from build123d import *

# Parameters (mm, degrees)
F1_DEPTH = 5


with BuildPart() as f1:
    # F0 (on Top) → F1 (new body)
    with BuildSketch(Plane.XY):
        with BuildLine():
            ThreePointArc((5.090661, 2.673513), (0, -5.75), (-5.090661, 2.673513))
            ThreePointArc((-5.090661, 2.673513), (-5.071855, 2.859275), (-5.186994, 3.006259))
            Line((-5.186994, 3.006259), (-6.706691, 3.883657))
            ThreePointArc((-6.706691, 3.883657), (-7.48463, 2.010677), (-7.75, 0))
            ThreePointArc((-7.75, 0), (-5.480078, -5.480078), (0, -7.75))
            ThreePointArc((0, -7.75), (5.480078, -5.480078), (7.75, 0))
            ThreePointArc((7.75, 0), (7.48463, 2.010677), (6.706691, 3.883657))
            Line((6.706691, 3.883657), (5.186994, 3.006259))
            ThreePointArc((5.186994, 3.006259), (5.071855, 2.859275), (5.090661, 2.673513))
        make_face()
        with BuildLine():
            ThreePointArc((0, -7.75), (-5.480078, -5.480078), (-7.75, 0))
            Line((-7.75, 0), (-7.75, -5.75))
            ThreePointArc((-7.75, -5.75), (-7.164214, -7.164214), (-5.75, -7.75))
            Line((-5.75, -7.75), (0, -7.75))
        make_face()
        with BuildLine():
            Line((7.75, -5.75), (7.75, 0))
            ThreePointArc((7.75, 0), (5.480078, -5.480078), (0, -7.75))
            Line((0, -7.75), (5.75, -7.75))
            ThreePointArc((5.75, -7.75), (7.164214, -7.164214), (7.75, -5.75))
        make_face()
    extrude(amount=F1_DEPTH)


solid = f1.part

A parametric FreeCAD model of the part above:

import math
import FreeCAD as App
import Part
import Sketcher
from FreeCAD import Vector
Q = App.Units.Quantity

doc = App.newDocument("Part")
body = doc.addObject("PartDesign::Body", "Body")

# Sketch on XY plane
sketch1 = body.newObject("Sketcher::SketchObject", "Sketch")
sketch1.AttachmentSupport = (doc.getObject("XY_Plane"), [""])
sketch1.MapMode = "FlatFace"
sketch1.addGeometry([
    Part.ArcOfCircle(Part.Circle(Vector(0, 0, 0), Vector(0, 0, 1), 5.75), math.radians(152.292447), math.radians(387.707553)),  # 0
    Part.ArcOfCircle(Part.Circle(Vector(-5.311993, 2.789753, 0), Vector(0, 0, 1), 0.249999), math.radians(-27.707702), math.radians(60.000126)),  # 1
    Part.LineSegment(Vector(-5.186994, 3.006259, 0), Vector(-6.706691, 3.883657, 0)),  # 2
    Part.ArcOfCircle(Part.Circle(Vector(-0.000019, 0.000005, 0), Vector(0, 0, 1), 7.749981), math.radians(149.926028), math.radians(180.000034)),  # 3
    Part.LineSegment(Vector(-7.75, 0, 0), Vector(-7.75, -5.75, 0)),  # 4
    Part.ArcOfCircle(Part.Circle(Vector(-5.750001, -5.750001, 0), Vector(0, 0, 1), 1.999999), math.radians(179.999957), math.radians(270.000043)),  # 5
    Part.LineSegment(Vector(-5.75, -7.75, 0), Vector(5.75, -7.75, 0)),  # 6
    Part.ArcOfCircle(Part.Circle(Vector(5.750001, -5.750001, 0), Vector(0, 0, 1), 1.999999), math.radians(-90.000043), math.radians(0.000043)),  # 7
    Part.LineSegment(Vector(7.75, -5.75, 0), Vector(7.75, 0, 0)),  # 8
    Part.ArcOfCircle(Part.Circle(Vector(0.000019, 0.000005, 0), Vector(0, 0, 1), 7.749981), math.radians(-0.000034), math.radians(30.073972)),  # 9
    Part.LineSegment(Vector(6.706691, 3.883657, 0), Vector(5.186994, 3.006259, 0)),  # 10
    Part.ArcOfCircle(Part.Circle(Vector(5.311993, 2.789753, 0), Vector(0, 0, 1), 0.249999), math.radians(119.999874), math.radians(207.707702)),  # 11
], False)
sketch1.addConstraint([
    Sketcher.Constraint("Coincident", 0, 1, 1, 1),
    Sketcher.Constraint("Coincident", 1, 2, 2, 1),
    Sketcher.Constraint("Coincident", 2, 2, 3, 1),
    Sketcher.Constraint("Tangent", 3, 2, 4, 1),
    Sketcher.Constraint("Tangent", 4, 2, 5, 1),
    Sketcher.Constraint("Tangent", 5, 2, 6, 1),
    Sketcher.Constraint("Tangent", 6, 2, 7, 1),
    Sketcher.Constraint("Tangent", 7, 2, 8, 1),
    Sketcher.Constraint("Tangent", 8, 2, 9, 1),
    Sketcher.Constraint("Coincident", 9, 2, 10, 1),
    Sketcher.Constraint("Coincident", 10, 2, 11, 1),
    Sketcher.Constraint("Coincident", 11, 2, 0, 2),
    Sketcher.Constraint("Vertical", 4),
    Sketcher.Constraint("Horizontal", 6),
    Sketcher.Constraint("Vertical", 8),
    Sketcher.Constraint("Coincident", 0, 3, -1, 1),
    Sketcher.Constraint("Equal", 5, 7),
    Sketcher.Constraint("Equal", 3, 9),
    Sketcher.Constraint("Equal", 1, 11),
    Sketcher.Constraint("Symmetric", 3, 3, 9, 3, -1, 1),
    Sketcher.Constraint("Symmetric", 2, 2, 9, 2, -2),
    Sketcher.Constraint("Symmetric", 1, 2, 10, 2, -2),
    Sketcher.Constraint("Horizontal", 0, 1, 11, 2),
    Sketcher.Constraint("Radius", 5, 1.999999),
    Sketcher.Constraint("Angle", 2, Q("149.999985 deg")),
    Sketcher.Constraint("Radius", 0, 5.75),
    Sketcher.Constraint("Radius", 1, 0.249999),
    Sketcher.Constraint("DistanceX", 6, 1, 6, 2, 11.5),
    Sketcher.Constraint("DistanceY", 4, 2, 4, 1, 5.75),
    Sketcher.Constraint("Radius", 3, 7.749981),
    Sketcher.Constraint("DistanceX", 1, 3, 1, 2, 0.124999),
    Sketcher.Constraint("DistanceX", 0, 1, -1, 1, 5.090661),
    Sketcher.Constraint("DistanceY", -1, 1, 1, 2, 3.006259),
])
pad1 = body.newObject("PartDesign::Pad", "Pad")
pad1.Profile = sketch1
pad1.Length = 5

doc.recompute()
